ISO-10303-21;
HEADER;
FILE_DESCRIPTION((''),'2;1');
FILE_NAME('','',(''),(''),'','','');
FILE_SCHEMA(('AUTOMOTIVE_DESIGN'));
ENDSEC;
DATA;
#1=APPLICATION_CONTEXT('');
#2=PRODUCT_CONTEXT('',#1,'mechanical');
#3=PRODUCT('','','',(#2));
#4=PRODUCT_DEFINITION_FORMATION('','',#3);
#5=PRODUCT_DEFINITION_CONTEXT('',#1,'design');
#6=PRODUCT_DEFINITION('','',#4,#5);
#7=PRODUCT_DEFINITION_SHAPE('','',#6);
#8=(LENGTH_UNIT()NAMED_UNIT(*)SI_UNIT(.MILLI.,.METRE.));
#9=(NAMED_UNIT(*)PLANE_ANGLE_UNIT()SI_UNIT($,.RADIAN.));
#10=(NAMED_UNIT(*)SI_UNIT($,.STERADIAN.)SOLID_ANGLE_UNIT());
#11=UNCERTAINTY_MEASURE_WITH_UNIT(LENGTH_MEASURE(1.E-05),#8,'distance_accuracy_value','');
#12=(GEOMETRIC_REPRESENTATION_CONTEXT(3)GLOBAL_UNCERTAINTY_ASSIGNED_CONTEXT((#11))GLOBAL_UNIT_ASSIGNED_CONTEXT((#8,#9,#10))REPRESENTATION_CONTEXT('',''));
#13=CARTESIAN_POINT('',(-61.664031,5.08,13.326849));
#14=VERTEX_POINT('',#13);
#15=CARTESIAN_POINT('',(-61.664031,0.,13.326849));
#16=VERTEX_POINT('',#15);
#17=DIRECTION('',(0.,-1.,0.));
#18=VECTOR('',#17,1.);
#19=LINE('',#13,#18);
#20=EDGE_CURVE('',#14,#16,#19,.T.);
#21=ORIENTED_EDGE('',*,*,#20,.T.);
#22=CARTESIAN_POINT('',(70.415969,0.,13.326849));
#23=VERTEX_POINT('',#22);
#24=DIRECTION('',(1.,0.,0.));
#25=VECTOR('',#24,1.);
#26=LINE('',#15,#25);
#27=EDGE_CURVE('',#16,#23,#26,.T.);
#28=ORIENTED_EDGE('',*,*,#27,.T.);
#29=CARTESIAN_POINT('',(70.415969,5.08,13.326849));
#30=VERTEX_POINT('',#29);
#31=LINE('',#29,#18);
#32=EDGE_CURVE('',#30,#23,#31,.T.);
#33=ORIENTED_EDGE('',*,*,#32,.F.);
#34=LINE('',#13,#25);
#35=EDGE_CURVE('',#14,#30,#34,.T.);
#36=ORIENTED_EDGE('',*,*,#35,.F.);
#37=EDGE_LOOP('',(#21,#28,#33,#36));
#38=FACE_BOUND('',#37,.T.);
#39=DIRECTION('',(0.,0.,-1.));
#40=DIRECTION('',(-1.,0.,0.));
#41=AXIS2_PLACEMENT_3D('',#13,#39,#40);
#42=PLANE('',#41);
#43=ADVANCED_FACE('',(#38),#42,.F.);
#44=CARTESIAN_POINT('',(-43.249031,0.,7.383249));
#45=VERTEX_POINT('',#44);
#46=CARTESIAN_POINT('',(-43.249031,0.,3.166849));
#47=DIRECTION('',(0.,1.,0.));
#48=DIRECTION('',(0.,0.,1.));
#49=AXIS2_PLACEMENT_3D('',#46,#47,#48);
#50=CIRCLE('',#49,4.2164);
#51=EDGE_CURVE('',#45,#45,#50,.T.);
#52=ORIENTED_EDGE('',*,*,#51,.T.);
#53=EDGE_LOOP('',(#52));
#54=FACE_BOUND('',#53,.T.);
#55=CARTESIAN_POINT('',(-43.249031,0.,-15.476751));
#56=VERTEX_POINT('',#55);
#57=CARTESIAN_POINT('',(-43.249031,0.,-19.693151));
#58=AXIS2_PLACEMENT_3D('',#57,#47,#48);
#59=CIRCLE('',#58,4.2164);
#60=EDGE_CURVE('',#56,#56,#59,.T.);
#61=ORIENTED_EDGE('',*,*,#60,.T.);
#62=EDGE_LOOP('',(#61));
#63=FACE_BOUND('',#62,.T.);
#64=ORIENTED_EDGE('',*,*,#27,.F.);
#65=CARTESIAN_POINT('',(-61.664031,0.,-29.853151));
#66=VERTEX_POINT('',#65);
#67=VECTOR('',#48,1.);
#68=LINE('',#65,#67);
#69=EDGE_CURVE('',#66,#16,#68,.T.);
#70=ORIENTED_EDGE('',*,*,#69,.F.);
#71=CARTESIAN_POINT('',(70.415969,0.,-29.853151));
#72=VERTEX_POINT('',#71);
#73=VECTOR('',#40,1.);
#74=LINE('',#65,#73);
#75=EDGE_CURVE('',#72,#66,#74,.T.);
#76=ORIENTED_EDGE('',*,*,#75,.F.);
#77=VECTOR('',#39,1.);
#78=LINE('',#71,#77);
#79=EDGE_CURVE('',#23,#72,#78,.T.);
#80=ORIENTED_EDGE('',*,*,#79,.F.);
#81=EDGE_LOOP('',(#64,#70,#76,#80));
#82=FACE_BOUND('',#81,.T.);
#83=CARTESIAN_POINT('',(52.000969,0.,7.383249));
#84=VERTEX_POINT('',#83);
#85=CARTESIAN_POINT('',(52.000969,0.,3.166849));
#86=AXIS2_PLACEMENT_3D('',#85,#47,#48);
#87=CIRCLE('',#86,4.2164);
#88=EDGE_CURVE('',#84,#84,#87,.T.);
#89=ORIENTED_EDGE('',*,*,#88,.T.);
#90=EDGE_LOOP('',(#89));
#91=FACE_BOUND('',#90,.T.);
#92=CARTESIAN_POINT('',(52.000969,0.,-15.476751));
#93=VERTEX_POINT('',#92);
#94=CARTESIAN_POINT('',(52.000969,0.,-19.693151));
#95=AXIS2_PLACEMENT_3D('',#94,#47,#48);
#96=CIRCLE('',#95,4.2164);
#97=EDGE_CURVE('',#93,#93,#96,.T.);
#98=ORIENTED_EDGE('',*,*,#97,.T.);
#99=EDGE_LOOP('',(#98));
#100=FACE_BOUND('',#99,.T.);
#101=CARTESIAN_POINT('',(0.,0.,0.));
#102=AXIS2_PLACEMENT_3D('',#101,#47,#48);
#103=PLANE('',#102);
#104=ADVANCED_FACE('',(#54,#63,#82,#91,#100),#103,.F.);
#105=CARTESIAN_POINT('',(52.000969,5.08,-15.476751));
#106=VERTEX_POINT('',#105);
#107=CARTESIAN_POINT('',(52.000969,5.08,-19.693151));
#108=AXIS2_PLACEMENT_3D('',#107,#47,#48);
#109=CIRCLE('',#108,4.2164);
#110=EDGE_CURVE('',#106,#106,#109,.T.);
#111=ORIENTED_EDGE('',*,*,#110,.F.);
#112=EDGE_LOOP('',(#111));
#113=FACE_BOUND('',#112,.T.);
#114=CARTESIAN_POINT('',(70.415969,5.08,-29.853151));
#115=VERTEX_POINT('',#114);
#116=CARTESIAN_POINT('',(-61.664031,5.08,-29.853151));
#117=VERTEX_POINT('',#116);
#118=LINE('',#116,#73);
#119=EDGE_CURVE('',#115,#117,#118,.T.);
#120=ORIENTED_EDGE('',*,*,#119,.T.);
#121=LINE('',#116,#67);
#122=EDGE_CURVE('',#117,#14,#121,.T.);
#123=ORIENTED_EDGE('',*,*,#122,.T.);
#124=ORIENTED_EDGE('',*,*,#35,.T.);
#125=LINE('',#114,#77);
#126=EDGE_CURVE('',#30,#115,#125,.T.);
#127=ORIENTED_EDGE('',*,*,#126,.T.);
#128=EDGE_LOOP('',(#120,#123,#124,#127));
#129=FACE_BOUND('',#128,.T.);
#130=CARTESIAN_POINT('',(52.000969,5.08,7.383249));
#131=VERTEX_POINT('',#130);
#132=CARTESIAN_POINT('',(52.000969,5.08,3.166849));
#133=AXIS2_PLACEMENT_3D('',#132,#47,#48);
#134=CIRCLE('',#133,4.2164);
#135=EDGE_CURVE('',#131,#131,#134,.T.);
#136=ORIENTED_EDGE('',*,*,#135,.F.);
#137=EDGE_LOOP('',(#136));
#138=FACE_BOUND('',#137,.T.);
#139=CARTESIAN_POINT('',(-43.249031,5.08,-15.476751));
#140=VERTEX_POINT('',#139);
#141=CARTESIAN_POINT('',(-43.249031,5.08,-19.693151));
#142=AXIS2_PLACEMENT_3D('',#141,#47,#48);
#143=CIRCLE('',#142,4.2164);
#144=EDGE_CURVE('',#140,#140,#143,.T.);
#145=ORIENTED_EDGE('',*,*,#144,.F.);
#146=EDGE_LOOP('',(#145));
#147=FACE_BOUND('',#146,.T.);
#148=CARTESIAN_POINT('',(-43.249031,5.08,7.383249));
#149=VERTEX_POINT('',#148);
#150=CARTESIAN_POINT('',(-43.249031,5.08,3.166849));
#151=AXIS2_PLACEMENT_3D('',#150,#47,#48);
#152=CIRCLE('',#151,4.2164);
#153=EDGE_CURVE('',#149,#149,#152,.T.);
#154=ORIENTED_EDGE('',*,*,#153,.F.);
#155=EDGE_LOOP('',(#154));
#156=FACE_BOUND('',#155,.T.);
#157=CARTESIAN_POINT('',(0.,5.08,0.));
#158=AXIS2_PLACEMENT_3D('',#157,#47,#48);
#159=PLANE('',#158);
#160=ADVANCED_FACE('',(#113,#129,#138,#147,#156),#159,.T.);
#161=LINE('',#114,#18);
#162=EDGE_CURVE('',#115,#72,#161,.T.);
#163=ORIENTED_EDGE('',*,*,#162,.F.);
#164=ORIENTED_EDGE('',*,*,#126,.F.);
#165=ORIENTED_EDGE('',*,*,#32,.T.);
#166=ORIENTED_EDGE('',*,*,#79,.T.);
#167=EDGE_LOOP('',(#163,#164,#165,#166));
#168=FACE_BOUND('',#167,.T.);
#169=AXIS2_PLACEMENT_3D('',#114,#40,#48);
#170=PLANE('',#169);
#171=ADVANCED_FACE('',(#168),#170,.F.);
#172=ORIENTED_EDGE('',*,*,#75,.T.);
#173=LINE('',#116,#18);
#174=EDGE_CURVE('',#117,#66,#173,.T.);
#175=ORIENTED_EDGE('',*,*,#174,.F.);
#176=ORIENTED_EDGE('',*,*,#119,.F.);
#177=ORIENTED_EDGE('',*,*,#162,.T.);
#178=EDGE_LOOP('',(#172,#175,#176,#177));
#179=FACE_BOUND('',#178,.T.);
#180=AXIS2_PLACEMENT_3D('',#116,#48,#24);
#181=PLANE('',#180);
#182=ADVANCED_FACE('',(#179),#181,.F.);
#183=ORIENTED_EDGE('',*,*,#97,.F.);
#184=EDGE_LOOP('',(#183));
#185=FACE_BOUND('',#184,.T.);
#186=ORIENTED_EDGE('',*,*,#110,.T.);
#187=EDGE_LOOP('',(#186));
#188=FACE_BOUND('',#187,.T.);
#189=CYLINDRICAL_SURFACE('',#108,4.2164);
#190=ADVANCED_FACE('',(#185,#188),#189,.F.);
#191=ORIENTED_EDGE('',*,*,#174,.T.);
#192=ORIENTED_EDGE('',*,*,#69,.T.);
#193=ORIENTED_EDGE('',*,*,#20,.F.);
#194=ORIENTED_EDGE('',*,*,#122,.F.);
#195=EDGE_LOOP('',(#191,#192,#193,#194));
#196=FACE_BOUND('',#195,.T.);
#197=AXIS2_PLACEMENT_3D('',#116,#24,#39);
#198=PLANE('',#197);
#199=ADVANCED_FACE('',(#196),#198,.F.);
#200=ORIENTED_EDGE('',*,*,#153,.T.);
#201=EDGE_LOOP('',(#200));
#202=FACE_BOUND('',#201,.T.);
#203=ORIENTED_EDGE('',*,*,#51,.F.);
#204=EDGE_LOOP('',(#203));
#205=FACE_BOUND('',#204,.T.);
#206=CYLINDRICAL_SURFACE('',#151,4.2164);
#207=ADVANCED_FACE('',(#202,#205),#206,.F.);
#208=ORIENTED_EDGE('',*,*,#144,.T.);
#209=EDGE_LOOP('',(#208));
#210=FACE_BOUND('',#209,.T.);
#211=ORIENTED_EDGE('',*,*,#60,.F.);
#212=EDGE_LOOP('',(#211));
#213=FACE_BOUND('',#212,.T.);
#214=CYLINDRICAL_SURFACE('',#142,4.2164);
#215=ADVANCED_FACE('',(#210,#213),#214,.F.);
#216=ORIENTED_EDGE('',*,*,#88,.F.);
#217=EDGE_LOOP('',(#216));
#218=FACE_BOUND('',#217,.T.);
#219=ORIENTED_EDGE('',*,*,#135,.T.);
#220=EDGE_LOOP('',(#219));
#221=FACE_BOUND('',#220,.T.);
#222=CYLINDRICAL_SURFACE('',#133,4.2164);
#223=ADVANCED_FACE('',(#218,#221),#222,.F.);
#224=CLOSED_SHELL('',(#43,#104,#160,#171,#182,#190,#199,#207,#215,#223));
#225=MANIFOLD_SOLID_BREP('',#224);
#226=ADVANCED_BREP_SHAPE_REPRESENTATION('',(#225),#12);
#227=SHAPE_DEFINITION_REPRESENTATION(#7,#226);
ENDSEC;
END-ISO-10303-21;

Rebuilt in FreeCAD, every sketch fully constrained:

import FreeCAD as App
import Part
import Sketcher
from FreeCAD import Vector
Q = App.Units.Quantity


def add_polygon(sketch, points):
    """Adds a closed chain of lines whose ends are joined by coincident constraints."""
    first, n = sketch.GeometryCount, len(points)
    for a, b in zip(points, points[1:] + points[:1]):
        sketch.addGeometry(Part.LineSegment(App.Vector(*a, 0), App.Vector(*b, 0)), False)
    for i in range(n):
        sketch.addConstraint(Sketcher.Constraint("Coincident", first + i, 2, first + (i + 1) % n, 1))

doc = App.newDocument("Part")
body = doc.addObject("PartDesign::Body", "Body")

# Sketch on XZ plane
sketch1 = doc.addObject("Sketcher::SketchObject", "Sketch")
body.addObject(sketch1)
sketch1.AttachmentSupport = (doc.XZ_Plane, [""])
sketch1.MapMode = "FlatFace"
add_polygon(sketch1, [(-61.664031, -29.853151), (-61.664031, 13.326849), (70.415969, 13.326849), (70.415969, -29.853151)])  # lines 0-3
sketch1.addConstraint(Sketcher.Constraint("Vertical", 0))
sketch1.addConstraint(Sketcher.Constraint("Horizontal", 1))
sketch1.addConstraint(Sketcher.Constraint("Vertical", 2))
sketch1.addConstraint(Sketcher.Constraint("Horizontal", 3))
sketch1.addConstraint(Sketcher.Constraint("DistanceX", 1, 1, 1, 2, Q("5.2 in")))
sketch1.addConstraint(Sketcher.Constraint("DistanceY", 0, 1, 0, 2, Q("1.7 in")))
sketch1.addConstraint(Sketcher.Constraint("DistanceX", 0, 2, -1, 1, Q("61.664031 mm")))
sketch1.addConstraint(Sketcher.Constraint("DistanceY", -1, 1, 0, 2, Q("13.326849 mm")))
pad1 = doc.addObject("PartDesign::Pad", "Pad")
body.addObject(pad1)
pad1.Profile = sketch1
pad1.Length = Q("0.2 in")
pad1.Reversed = True

# Sketch on XZ plane
sketch2 = doc.addObject("Sketcher::SketchObject", "Sketch001")
body.addObject(sketch2)
sketch2.AttachmentSupport = (doc.XZ_Plane, [""])
sketch2.MapMode = "FlatFace"
sketch2.AttachmentOffset = App.Placement(Vector(0, 0, -0.2 * 25.4), App.Rotation())
sketch2.addGeometry(Part.Circle(Vector(-43.249031, -19.693151, 0), Vector(0, 0, 1), 4.2164), False)
sketch2.addGeometry(Part.Circle(Vector(-43.249031, 3.166849, 0), Vector(0, 0, 1), 4.2164), False)
sketch2.addGeometry(Part.Circle(Vector(52.000969, -19.693151, 0), Vector(0, 0, 1), 4.2164), False)
sketch2.addGeometry(Part.Circle(Vector(52.000969, 3.166849, 0), Vector(0, 0, 1), 4.2164), False)
sketch2.addConstraint(Sketcher.Constraint("Equal", 0, 1))
sketch2.addConstraint(Sketcher.Constraint("Equal", 1, 2))
sketch2.addConstraint(Sketcher.Constraint("Equal", 2, 3))
sketch2.addConstraint(Sketcher.Constraint("Horizontal", 0, 3, 2, 3))
sketch2.addConstraint(Sketcher.Constraint("Horizontal", 1, 3, 3, 3))
sketch2.addConstraint(Sketcher.Constraint("Vertical", 0, 3, 1, 3))
sketch2.addConstraint(Sketcher.Constraint("Vertical", 2, 3, 3, 3))
sketch2.addConstraint(Sketcher.Constraint("Diameter", 0, Q("0.332 in")))
sketch2.addConstraint(Sketcher.Constraint("DistanceY", 0, 3, 1, 3, Q("0.9 in")))
sketch2.addConstraint(Sketcher.Constraint("DistanceX", 0, 3, 2, 3, Q("3.75 in")))
sketch2.addConstraint(Sketcher.Constraint("DistanceX", 0, 3, -1, 1, Q("43.249031 mm")))
sketch2.addConstraint(Sketcher.Constraint("DistanceY", 0, 3, -1, 1, Q("19.693151 mm")))
doc.recompute()
hole = doc.addObject("PartDesign::Hole", "Hole")
body.addObject(hole)
hole.Profile = sketch2
hole.ThreadType = "None"
hole.Diameter = Q("0.332 in")
hole.DepthType = "ThroughAll"
hole.Reversed = True

doc.recompute()
